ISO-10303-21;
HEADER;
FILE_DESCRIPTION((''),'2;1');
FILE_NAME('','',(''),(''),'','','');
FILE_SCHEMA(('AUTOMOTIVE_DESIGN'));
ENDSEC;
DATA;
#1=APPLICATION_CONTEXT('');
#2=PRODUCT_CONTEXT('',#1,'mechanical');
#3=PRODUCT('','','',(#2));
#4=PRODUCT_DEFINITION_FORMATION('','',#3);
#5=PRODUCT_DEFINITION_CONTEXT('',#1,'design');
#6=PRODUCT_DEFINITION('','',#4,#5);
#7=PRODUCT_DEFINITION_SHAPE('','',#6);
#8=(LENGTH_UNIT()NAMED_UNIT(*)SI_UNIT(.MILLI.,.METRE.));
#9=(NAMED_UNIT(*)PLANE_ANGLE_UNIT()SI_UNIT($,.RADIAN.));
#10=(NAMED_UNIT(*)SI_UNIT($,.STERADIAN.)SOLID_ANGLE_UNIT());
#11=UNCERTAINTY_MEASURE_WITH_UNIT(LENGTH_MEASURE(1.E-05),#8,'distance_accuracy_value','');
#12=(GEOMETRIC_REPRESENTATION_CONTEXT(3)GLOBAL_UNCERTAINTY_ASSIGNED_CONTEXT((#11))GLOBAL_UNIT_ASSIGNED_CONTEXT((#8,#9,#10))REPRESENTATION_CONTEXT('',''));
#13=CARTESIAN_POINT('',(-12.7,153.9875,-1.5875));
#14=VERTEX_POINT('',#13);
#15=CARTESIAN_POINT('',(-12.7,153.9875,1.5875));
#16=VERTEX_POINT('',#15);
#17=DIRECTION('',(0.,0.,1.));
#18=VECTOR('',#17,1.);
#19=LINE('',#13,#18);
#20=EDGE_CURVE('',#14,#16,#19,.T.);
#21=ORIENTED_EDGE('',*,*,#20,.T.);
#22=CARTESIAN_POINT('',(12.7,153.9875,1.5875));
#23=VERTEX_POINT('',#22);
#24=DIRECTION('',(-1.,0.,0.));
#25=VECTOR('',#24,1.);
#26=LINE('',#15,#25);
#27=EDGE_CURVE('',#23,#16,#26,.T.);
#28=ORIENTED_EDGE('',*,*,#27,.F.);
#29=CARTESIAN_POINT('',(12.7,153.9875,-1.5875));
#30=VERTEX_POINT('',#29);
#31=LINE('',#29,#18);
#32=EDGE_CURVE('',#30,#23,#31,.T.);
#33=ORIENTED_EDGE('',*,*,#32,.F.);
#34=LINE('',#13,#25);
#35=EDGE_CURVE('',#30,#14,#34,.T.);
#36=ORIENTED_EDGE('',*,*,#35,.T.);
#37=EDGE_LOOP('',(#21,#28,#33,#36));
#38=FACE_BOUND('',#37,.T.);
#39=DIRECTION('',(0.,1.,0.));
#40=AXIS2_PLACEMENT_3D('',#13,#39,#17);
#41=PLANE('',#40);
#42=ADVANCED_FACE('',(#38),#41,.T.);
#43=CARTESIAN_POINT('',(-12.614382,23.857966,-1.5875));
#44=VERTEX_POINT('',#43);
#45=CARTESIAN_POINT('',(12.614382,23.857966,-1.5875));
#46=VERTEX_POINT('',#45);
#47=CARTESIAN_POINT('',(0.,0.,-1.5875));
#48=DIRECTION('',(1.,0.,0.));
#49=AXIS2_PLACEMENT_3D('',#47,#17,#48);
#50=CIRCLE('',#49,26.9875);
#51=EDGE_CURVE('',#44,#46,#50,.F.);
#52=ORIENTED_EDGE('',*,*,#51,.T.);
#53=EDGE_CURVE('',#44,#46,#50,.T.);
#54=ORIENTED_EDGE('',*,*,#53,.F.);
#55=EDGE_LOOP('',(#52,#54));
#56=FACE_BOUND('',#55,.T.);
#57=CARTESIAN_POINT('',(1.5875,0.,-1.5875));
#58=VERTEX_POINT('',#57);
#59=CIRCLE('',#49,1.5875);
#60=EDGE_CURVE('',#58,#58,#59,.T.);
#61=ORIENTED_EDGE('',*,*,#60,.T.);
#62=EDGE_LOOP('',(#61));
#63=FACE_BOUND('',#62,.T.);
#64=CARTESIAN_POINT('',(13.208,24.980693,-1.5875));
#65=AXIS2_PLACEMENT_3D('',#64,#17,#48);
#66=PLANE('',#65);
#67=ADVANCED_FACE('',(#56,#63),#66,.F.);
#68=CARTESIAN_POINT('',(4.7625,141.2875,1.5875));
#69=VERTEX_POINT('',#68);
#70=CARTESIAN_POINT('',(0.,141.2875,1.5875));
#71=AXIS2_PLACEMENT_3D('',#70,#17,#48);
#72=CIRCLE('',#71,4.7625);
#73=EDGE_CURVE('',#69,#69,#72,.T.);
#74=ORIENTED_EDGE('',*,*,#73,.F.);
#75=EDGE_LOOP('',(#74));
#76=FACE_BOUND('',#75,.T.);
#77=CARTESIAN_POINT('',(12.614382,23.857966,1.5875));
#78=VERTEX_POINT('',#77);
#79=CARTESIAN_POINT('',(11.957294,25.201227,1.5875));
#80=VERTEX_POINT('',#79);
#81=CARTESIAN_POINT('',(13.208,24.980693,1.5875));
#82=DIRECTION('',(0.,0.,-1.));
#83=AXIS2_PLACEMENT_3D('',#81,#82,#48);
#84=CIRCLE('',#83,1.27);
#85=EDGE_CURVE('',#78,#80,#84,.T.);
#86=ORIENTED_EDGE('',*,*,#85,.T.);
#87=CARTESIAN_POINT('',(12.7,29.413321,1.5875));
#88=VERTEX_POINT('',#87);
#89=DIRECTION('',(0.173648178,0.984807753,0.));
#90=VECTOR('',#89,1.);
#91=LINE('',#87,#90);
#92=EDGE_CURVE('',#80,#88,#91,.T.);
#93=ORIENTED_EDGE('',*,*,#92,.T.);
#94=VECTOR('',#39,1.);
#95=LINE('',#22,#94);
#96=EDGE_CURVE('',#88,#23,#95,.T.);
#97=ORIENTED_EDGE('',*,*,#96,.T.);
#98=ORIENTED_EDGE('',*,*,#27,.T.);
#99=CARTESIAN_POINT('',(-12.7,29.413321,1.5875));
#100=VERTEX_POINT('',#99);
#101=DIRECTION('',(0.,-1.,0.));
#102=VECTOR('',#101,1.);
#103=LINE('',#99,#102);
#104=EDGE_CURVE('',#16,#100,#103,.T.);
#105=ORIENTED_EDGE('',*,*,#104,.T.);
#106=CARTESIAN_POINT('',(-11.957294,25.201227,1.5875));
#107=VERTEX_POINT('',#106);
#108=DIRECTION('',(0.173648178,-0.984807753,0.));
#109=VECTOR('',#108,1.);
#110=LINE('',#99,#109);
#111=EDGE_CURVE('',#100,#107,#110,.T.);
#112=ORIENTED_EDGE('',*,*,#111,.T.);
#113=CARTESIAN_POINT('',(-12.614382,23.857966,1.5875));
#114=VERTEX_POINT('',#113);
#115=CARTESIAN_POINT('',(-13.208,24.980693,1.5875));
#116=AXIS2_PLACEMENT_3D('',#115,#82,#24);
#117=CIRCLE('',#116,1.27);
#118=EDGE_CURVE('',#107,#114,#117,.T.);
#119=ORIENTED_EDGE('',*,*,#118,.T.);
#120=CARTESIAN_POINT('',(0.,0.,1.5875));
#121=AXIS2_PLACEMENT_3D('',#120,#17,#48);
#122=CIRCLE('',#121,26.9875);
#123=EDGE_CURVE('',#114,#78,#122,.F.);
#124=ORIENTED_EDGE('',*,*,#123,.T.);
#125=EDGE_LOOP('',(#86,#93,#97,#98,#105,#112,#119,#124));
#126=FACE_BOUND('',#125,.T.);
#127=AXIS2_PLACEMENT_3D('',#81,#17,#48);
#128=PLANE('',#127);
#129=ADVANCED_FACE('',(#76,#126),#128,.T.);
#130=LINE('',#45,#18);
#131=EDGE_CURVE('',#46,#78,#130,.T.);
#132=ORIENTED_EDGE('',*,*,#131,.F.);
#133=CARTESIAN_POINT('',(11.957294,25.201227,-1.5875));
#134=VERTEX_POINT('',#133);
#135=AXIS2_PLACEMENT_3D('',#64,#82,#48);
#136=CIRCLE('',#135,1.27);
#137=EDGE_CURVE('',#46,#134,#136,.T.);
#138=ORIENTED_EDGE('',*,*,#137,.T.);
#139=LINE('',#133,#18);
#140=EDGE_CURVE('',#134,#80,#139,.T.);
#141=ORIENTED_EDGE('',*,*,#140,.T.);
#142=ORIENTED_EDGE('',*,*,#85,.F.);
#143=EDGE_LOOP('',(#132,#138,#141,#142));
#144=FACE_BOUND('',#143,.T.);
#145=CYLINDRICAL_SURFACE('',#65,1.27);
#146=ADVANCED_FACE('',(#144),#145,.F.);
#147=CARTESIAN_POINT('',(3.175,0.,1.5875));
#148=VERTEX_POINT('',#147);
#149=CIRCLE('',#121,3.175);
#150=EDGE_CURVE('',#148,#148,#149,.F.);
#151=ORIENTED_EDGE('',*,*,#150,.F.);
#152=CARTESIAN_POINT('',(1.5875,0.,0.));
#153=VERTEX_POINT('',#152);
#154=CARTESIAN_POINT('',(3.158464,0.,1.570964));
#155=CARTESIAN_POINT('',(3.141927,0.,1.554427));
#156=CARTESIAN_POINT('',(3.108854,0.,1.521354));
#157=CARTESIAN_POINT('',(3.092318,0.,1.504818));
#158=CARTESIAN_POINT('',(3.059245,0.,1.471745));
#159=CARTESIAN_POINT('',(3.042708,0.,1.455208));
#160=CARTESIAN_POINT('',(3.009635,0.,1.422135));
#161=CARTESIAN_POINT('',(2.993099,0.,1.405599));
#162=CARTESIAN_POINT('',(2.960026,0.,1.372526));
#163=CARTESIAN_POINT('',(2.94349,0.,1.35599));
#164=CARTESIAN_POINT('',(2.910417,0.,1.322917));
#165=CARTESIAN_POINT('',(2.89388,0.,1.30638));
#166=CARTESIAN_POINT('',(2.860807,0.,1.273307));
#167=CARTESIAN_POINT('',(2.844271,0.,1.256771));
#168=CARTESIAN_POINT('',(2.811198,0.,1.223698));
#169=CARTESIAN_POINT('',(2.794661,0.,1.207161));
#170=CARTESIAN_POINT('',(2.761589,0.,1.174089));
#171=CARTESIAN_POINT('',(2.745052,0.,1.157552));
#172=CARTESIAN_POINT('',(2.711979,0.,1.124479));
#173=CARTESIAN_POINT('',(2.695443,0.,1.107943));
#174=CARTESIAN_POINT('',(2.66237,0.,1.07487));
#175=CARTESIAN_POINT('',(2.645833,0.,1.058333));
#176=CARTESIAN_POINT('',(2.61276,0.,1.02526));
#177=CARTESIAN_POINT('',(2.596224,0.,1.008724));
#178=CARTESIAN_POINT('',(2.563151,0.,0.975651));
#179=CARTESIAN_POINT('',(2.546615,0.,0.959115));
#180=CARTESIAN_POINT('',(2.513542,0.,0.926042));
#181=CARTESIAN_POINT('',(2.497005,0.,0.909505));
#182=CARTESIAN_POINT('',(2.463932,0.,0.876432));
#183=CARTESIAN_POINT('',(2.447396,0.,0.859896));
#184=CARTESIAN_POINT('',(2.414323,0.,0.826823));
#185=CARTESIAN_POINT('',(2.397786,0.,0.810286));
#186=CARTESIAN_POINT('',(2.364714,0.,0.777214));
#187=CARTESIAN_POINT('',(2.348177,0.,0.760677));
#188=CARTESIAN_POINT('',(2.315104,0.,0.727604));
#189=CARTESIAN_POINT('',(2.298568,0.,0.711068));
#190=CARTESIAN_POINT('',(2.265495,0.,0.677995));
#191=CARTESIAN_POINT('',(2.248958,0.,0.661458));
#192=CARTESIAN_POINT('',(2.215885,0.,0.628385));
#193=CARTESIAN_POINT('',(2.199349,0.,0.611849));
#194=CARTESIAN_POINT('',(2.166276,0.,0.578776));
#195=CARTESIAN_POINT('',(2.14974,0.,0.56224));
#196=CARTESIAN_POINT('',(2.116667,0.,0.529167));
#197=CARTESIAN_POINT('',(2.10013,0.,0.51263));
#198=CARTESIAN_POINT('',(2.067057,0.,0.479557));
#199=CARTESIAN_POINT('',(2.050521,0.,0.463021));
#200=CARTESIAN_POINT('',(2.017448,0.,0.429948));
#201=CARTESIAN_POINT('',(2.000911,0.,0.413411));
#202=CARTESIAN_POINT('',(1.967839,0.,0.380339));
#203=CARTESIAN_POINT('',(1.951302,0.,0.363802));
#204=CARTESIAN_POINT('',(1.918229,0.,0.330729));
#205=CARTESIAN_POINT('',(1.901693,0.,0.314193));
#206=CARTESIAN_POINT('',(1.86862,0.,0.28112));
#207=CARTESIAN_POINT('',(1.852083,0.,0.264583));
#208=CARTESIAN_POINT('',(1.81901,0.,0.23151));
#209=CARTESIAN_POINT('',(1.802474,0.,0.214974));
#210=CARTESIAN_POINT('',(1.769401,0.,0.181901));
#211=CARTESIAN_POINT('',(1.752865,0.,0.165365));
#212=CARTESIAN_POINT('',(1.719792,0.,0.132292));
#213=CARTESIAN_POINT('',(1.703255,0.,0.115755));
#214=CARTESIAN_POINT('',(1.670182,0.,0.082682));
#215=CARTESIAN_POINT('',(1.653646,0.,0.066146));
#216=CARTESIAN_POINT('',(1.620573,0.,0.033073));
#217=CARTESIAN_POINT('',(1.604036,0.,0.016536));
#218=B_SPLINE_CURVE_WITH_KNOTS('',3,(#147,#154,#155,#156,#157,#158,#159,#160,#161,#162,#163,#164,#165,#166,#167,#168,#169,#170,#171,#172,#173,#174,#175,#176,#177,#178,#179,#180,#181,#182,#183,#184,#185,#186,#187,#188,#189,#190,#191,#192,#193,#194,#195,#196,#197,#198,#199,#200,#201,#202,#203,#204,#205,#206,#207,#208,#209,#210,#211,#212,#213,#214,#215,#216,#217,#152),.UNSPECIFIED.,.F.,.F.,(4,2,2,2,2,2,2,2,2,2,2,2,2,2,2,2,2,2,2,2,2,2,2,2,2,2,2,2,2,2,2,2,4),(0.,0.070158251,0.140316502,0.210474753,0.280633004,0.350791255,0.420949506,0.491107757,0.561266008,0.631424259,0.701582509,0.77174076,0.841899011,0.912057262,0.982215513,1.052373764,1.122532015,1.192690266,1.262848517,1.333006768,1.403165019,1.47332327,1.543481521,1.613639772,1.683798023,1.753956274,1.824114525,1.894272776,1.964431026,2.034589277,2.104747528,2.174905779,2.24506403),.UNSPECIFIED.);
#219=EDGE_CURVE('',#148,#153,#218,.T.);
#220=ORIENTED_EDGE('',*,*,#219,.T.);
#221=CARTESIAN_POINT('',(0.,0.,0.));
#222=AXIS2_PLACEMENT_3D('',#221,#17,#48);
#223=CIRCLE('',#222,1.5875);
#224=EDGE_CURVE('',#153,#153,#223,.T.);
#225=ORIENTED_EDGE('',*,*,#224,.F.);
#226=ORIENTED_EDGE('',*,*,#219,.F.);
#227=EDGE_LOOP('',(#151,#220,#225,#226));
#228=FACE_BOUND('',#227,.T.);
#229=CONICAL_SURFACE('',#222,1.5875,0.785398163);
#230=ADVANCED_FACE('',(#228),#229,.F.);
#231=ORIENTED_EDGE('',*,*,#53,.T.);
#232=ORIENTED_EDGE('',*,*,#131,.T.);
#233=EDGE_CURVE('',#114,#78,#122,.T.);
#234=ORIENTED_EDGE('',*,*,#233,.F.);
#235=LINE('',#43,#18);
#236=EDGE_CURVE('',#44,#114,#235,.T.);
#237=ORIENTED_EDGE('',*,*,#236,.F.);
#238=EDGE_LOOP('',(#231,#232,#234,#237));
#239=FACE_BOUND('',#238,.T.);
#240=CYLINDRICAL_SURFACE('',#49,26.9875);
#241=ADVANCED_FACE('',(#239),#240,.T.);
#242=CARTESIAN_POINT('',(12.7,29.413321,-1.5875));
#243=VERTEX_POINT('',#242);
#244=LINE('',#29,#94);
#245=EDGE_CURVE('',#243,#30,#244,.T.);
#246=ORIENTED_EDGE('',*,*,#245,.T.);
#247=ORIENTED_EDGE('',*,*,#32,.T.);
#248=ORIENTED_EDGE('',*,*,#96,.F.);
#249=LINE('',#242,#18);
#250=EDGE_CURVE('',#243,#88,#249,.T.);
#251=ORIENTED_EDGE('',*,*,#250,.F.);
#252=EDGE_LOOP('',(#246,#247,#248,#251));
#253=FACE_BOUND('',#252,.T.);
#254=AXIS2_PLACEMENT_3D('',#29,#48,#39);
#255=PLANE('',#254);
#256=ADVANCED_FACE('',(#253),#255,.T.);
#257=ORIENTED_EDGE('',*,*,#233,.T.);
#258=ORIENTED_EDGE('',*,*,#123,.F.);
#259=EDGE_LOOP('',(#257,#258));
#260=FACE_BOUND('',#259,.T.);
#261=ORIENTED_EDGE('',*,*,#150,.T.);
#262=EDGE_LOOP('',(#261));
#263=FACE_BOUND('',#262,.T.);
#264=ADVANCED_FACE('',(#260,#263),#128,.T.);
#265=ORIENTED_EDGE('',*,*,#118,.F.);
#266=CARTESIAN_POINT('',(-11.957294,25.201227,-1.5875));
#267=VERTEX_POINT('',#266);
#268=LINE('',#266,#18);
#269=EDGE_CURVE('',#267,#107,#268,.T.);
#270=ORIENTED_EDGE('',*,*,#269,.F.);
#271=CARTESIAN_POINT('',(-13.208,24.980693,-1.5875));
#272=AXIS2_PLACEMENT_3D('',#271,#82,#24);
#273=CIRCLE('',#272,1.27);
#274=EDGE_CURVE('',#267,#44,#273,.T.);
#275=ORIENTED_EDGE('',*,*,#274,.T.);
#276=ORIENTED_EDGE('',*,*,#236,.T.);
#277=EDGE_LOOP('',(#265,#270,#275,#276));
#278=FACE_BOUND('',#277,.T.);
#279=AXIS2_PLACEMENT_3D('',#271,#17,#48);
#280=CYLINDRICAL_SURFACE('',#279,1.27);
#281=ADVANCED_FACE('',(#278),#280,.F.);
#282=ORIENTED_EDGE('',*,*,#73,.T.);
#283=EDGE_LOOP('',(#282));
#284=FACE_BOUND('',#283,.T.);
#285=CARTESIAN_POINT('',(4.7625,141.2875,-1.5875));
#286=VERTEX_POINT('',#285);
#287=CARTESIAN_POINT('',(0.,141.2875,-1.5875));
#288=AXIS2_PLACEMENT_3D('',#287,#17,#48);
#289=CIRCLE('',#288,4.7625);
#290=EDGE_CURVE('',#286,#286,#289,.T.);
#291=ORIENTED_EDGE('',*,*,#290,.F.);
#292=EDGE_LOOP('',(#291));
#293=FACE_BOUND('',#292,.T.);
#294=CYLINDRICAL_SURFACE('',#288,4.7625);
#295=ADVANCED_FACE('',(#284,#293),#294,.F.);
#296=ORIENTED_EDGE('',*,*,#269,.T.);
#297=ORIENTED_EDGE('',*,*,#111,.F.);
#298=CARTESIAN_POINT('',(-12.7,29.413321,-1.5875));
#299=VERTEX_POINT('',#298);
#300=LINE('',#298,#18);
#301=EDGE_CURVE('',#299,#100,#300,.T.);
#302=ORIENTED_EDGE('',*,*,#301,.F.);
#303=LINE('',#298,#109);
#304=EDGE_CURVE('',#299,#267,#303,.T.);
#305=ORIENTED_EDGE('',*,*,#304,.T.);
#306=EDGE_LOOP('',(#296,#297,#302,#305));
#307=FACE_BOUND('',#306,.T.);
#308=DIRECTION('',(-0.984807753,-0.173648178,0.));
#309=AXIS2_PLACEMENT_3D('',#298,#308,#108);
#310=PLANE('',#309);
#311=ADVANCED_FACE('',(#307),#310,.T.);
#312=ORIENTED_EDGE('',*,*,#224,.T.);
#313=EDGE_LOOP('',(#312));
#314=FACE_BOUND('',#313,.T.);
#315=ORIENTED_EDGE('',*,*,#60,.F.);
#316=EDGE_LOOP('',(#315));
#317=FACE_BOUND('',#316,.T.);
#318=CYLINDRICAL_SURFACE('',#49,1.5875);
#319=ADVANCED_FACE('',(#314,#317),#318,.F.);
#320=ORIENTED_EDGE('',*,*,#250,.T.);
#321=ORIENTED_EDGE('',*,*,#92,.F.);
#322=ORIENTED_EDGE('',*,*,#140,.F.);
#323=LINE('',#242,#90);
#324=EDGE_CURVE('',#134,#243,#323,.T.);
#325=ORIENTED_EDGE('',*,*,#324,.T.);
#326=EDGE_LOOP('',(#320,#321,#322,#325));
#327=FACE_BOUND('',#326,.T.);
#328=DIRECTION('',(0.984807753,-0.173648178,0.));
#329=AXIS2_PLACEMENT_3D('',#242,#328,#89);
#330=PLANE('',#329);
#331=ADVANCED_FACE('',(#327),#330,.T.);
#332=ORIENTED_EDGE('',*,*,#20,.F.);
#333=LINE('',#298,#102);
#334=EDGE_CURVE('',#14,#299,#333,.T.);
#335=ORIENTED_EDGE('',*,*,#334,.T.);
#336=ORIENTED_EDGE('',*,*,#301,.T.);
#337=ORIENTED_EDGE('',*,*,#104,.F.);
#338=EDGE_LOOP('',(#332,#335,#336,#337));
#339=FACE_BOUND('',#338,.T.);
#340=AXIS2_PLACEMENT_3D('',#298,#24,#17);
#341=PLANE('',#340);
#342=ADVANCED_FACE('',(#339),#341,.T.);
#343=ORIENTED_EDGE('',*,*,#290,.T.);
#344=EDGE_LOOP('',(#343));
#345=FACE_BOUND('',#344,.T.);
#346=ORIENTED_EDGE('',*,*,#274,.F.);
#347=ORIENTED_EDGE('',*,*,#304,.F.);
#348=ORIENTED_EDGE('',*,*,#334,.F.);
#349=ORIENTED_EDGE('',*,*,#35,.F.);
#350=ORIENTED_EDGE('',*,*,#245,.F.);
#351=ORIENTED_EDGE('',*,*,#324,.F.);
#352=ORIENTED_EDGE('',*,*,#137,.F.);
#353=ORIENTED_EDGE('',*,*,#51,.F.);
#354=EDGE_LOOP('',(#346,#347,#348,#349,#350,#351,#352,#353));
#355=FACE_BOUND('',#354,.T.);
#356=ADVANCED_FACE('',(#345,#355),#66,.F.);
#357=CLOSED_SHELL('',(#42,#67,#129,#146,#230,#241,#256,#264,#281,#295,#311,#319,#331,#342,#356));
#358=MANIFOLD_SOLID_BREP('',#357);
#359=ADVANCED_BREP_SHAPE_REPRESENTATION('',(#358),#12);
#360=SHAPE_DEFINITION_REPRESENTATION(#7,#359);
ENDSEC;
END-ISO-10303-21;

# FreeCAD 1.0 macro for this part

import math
import FreeCAD as App
import Part
import Sketcher
from FreeCAD import Vector
Q = App.Units.Quantity


def edges_at(feature, points):
    """Names of the edges that pass closest to the given points."""
    edges = feature.Shape.Edges
    near = lambda p: min(range(len(edges)), key=lambda i: edges[i].distToShape(Part.Vertex(*p))[0])
    return sorted({f"Edge{near(p) + 1}" for p in points})

doc = App.newDocument("Part")
params = doc.addObject("Spreadsheet::Sheet", "Params")
for row, (alias, value) in enumerate([
    ("sketch1_width", "1 in"),
    ("sketch1_radius", "0.05 in"),
    ("sketch1_diameter", "0.125 in"),
    ("sketch1_diameter2", "0.375 in"),
    ("sketch1_radius2", "1.0625 in"),
    ("pad1_length", "0.0625 in"),
    ("pad1_length2", "0.0625 in"),
    ("chamfer_size", "0.0625 in"),
], start=1):
    params.set(f"A{row}", alias)
    params.set(f"B{row}", "=" + value)
    params.setAlias(f"B{row}", alias)

body = doc.addObject("PartDesign::Body", "Body")

# Sketch on XY plane
sketch1 = body.newObject("Sketcher::SketchObject", "Sketch")
sketch1.AttachmentSupport = (doc.getObject("XY_Plane"), [""])
sketch1.MapMode = "FlatFace"
sketch1.addGeometry(Part.LineSegment(Vector(-12.7, 29.4, 0), Vector(-12, 25.2, 0)), False)
sketch1.addGeometry(Part.ArcOfCircle(Part.Circle(Vector(-13.2, 25, 0), Vector(0, 0, 1), 1.3), math.radians(-62), math.radians(10)), False)
sketch1.addGeometry(Part.ArcOfCircle(Part.Circle(Vector(0, 0, 0), Vector(0, 0, 1), 27), math.radians(118), math.radians(422)), False)
sketch1.addGeometry(Part.ArcOfCircle(Part.Circle(Vector(13.2, 25, 0), Vector(0, 0, 1), 1.3), math.radians(170), math.radians(242)), False)
sketch1.addGeometry(Part.LineSegment(Vector(12, 25.2, 0), Vector(12.7, 29.4, 0)), False)
sketch1.addGeometry(Part.LineSegment(Vector(12.7, 29.4, 0), Vector(12.7, 154, 0)), False)
sketch1.addGeometry(Part.LineSegment(Vector(12.7, 154, 0), Vector(-12.7, 154, 0)), False)
sketch1.addGeometry(Part.LineSegment(Vector(-12.7, 154, 0), Vector(-12.7, 29.4, 0)), False)
sketch1.addGeometry(Part.Circle(Vector(0, 0, 0), Vector(0, 0, 1), 1.6), False)
sketch1.addGeometry(Part.Circle(Vector(0, 141.3, 0), Vector(0, 0, 1), 4.8), False)
sketch1.addConstraint(Sketcher.Constraint("Tangent", 0, 2, 1, 2))
sketch1.addConstraint(Sketcher.Constraint("Tangent", 1, 1, 2, 1))
sketch1.addConstraint(Sketcher.Constraint("Tangent", 2, 2, 3, 2))
sketch1.addConstraint(Sketcher.Constraint("Tangent", 3, 1, 4, 1))
sketch1.addConstraint(Sketcher.Constraint("Coincident", 4, 2, 5, 1))
sketch1.addConstraint(Sketcher.Constraint("Coincident", 5, 2, 6, 1))
sketch1.addConstraint(Sketcher.Constraint("Coincident", 6, 2, 7, 1))
sketch1.addConstraint(Sketcher.Constraint("Coincident", 7, 2, 0, 1))
sketch1.addConstraint(Sketcher.Constraint("Vertical", 5))
sketch1.addConstraint(Sketcher.Constraint("Horizontal", 6))
sketch1.addConstraint(Sketcher.Constraint("Vertical", 7))
sketch1.addConstraint(Sketcher.Constraint("Coincident", 2, 3, -1, 1))
sketch1.addConstraint(Sketcher.Constraint("Coincident", 8, 3, -1, 1))
sketch1.addConstraint(Sketcher.Constraint("Equal", 1, 3))
sketch1.addConstraint(Sketcher.Constraint("Symmetric", 0, 2, 3, 1, -2))
sketch1.addConstraint(Sketcher.Constraint("PointOnObject", 9, 3, -2))
sketch1.addConstraint(Sketcher.Constraint("Horizontal", 4, 2, 7, 2))
sketch1.addConstraint(Sketcher.Constraint("DistanceX", 6, 2, 6, 1, Q("1 in")))
sketch1.addConstraint(Sketcher.Constraint("Radius", 1, Q("0.05 in")))
sketch1.addConstraint(Sketcher.Constraint("Diameter", 8, Q("0.125 in")))
sketch1.addConstraint(Sketcher.Constraint("Diameter", 9, Q("0.375 in")))
sketch1.addConstraint(Sketcher.Constraint("Angle", 0, Q("-80 deg")))
sketch1.addConstraint(Sketcher.Constraint("Radius", 2, Q("1.0625 in")))
sketch1.addConstraint(Sketcher.Constraint("DistanceY", 9, 3, 5, 2, Q("0.5 in")))
sketch1.addConstraint(Sketcher.Constraint("DistanceX", 1, 3, -1, 1, Q("0.52 in")))
sketch1.addConstraint(Sketcher.Constraint("DistanceY", -1, 1, 9, 3, Q("5.5625 in")))
sketch1.setExpression("Constraints[17]", "Params.sketch1_width")
sketch1.setExpression("Constraints[18]", "Params.sketch1_radius")
sketch1.setExpression("Constraints[19]", "Params.sketch1_diameter")
sketch1.setExpression("Constraints[20]", "Params.sketch1_diameter2")
sketch1.setExpression("Constraints[22]", "Params.sketch1_radius2")
pad1 = body.newObject("PartDesign::Pad", "Pad")
pad1.Profile = sketch1
pad1.Type = "TwoLengths"
pad1.setExpression("Length", "Params.pad1_length")
pad1.setExpression("Length2", "Params.pad1_length2")
doc.recompute()

chamfer = body.newObject("PartDesign::Chamfer", "Chamfer")
chamfer.Base = (pad1, edges_at(pad1, [(-1.587, 0, 1.587)]))
chamfer.setExpression("Size", "Params.chamfer_size")

doc.recompute()
